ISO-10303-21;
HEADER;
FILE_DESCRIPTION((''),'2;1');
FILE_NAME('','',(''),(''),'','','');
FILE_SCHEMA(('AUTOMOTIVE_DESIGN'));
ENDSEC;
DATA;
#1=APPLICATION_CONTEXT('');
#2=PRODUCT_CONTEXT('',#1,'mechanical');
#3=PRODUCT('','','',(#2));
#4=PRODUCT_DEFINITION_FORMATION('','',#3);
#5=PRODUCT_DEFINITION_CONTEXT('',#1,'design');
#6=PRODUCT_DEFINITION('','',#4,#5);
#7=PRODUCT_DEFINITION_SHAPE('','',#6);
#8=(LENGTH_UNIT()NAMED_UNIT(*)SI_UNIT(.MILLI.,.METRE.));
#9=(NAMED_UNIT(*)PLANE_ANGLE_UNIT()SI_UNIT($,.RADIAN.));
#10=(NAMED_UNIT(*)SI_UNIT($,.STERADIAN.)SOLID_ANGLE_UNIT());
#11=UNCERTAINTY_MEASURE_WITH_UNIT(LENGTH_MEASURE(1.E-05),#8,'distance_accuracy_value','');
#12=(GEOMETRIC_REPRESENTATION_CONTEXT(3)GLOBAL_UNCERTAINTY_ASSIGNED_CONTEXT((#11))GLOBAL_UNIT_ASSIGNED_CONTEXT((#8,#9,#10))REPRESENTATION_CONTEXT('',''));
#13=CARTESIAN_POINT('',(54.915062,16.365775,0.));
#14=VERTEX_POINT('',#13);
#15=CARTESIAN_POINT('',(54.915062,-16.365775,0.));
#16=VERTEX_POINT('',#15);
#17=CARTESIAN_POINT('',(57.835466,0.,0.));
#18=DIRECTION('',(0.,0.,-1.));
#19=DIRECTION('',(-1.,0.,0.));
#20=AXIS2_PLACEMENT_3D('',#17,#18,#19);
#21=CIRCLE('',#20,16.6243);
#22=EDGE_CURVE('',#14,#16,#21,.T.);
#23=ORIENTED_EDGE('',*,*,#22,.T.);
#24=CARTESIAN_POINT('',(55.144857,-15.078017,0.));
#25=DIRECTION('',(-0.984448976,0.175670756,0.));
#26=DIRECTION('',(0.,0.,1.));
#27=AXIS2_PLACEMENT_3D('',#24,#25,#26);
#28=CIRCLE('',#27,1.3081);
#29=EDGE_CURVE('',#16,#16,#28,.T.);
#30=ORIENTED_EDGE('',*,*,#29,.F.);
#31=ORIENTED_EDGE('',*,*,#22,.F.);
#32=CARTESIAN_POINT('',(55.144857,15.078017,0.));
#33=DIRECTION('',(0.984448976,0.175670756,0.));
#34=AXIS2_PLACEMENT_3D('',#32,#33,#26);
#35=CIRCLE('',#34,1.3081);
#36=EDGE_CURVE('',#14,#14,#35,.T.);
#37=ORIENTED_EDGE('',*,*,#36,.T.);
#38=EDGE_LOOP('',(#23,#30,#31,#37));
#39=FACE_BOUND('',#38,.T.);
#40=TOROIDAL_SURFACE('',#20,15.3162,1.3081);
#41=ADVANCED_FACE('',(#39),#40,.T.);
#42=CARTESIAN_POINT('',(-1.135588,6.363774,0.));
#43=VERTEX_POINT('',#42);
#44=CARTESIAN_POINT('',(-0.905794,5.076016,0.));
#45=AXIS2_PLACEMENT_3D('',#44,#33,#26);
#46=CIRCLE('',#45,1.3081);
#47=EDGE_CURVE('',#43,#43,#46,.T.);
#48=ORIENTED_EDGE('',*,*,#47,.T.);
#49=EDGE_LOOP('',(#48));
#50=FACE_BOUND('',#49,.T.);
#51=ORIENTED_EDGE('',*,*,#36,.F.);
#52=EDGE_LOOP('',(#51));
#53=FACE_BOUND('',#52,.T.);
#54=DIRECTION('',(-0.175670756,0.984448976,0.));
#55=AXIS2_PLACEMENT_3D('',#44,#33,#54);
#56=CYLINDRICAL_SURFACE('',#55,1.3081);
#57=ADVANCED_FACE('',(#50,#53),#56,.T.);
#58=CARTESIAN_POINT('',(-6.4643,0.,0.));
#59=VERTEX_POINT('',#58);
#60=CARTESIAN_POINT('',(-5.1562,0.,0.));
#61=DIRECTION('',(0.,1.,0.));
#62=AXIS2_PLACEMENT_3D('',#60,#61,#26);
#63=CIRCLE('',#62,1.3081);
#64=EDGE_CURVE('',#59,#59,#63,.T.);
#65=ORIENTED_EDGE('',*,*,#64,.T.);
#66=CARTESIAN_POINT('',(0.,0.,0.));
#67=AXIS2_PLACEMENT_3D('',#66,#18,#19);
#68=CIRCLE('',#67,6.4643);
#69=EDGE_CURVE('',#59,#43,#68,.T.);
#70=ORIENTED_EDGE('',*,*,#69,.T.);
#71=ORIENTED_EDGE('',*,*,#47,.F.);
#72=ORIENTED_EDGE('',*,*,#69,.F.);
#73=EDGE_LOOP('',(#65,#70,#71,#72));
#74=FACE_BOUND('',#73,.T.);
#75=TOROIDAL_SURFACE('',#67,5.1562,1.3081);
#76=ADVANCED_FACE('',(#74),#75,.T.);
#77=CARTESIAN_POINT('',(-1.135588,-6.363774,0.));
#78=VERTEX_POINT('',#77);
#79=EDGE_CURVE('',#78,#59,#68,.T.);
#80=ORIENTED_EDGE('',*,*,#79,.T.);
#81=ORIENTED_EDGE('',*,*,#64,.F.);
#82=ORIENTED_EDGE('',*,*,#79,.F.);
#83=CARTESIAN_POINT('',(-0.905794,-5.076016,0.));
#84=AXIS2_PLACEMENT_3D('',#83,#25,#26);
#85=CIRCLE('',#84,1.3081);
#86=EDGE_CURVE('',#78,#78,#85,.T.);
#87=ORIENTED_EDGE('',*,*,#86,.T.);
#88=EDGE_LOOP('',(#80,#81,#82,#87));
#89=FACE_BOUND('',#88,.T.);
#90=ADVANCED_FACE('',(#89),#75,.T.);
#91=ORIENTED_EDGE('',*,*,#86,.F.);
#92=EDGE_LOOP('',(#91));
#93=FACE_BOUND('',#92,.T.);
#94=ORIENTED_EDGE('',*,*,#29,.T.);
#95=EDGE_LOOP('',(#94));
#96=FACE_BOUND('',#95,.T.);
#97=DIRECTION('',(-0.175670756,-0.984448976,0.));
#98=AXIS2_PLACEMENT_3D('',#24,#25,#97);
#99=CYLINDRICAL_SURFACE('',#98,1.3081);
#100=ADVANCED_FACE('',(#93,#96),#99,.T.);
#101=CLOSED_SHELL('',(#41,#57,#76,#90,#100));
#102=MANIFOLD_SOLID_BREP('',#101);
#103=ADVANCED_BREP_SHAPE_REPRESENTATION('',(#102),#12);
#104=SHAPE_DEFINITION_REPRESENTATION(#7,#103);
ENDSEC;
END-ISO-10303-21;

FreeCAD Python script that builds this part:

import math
import FreeCAD as App
import Part
import Sketcher
from FreeCAD import Vector
Q = App.Units.Quantity

doc = App.newDocument("Part")
body = doc.addObject("PartDesign::Body", "Body")

sketch1 = body.newObject("Sketcher::SketchObject", "Sketch")
sketch1.AttachmentSupport = (doc.getObject("XZ_Plane"), [""])
sketch1.MapMode = "FlatFace"
sketch1.addGeometry(Part.Circle(Vector(-5.2, 0, 0), Vector(0, 0, 1), 1.3), False)
sketch1.addConstraint([
    Sketcher.Constraint("PointOnObject", 0, 3, -1),
    Sketcher.Constraint("Diameter", 0, Q("0.103 in")),
    Sketcher.Constraint("DistanceX", 0, 3, -1, 1, Q("0.203 in")),
])

sketch2 = body.newObject("Sketcher::SketchObject", "Sketch001")
sketch2.AttachmentSupport = (doc.getObject("XY_Plane"), [""])
sketch2.MapMode = "FlatFace"
sketch2.addGeometry([
    Part.LineSegment(Vector(-1, 5, 0), Vector(55, 15, 0)),
    Part.ArcOfCircle(Part.Circle(Vector(58, 0, 0), Vector(0, 0, 1), 15), math.radians(-100), math.radians(100)),
    Part.LineSegment(Vector(55, -15, 0), Vector(-1, -5, 0)),
    Part.ArcOfCircle(Part.Circle(Vector(0, 0, 0), Vector(0, 0, 1), 5), math.radians(100), math.radians(260)),
], False)
sketch2.addConstraint([
    Sketcher.Constraint("Tangent", 0, 2, 1, 2),
    Sketcher.Constraint("Tangent", 1, 1, 2, 1),
    Sketcher.Constraint("Tangent", 2, 2, 3, 2),
    Sketcher.Constraint("Tangent", 3, 1, 0, 1),
    Sketcher.Constraint("Coincident", 3, 3, -1, 1),
    Sketcher.Constraint("PointOnObject", 1, 3, -1),
    Sketcher.Constraint("Radius", 1, Q("0.603 in")),
    Sketcher.Constraint("Radius", 3, Q("0.203 in")),
    Sketcher.Constraint("DistanceX", 0, 2, 1, 3, 2.690608),
])
doc.recompute()

additivepipe = body.newObject("PartDesign::AdditivePipe", "AdditivePipe")
additivepipe.Profile = sketch1
additivepipe.Spine = (sketch2, ["Edge1", "Edge2", "Edge3", "Edge4"])

doc.recompute()
